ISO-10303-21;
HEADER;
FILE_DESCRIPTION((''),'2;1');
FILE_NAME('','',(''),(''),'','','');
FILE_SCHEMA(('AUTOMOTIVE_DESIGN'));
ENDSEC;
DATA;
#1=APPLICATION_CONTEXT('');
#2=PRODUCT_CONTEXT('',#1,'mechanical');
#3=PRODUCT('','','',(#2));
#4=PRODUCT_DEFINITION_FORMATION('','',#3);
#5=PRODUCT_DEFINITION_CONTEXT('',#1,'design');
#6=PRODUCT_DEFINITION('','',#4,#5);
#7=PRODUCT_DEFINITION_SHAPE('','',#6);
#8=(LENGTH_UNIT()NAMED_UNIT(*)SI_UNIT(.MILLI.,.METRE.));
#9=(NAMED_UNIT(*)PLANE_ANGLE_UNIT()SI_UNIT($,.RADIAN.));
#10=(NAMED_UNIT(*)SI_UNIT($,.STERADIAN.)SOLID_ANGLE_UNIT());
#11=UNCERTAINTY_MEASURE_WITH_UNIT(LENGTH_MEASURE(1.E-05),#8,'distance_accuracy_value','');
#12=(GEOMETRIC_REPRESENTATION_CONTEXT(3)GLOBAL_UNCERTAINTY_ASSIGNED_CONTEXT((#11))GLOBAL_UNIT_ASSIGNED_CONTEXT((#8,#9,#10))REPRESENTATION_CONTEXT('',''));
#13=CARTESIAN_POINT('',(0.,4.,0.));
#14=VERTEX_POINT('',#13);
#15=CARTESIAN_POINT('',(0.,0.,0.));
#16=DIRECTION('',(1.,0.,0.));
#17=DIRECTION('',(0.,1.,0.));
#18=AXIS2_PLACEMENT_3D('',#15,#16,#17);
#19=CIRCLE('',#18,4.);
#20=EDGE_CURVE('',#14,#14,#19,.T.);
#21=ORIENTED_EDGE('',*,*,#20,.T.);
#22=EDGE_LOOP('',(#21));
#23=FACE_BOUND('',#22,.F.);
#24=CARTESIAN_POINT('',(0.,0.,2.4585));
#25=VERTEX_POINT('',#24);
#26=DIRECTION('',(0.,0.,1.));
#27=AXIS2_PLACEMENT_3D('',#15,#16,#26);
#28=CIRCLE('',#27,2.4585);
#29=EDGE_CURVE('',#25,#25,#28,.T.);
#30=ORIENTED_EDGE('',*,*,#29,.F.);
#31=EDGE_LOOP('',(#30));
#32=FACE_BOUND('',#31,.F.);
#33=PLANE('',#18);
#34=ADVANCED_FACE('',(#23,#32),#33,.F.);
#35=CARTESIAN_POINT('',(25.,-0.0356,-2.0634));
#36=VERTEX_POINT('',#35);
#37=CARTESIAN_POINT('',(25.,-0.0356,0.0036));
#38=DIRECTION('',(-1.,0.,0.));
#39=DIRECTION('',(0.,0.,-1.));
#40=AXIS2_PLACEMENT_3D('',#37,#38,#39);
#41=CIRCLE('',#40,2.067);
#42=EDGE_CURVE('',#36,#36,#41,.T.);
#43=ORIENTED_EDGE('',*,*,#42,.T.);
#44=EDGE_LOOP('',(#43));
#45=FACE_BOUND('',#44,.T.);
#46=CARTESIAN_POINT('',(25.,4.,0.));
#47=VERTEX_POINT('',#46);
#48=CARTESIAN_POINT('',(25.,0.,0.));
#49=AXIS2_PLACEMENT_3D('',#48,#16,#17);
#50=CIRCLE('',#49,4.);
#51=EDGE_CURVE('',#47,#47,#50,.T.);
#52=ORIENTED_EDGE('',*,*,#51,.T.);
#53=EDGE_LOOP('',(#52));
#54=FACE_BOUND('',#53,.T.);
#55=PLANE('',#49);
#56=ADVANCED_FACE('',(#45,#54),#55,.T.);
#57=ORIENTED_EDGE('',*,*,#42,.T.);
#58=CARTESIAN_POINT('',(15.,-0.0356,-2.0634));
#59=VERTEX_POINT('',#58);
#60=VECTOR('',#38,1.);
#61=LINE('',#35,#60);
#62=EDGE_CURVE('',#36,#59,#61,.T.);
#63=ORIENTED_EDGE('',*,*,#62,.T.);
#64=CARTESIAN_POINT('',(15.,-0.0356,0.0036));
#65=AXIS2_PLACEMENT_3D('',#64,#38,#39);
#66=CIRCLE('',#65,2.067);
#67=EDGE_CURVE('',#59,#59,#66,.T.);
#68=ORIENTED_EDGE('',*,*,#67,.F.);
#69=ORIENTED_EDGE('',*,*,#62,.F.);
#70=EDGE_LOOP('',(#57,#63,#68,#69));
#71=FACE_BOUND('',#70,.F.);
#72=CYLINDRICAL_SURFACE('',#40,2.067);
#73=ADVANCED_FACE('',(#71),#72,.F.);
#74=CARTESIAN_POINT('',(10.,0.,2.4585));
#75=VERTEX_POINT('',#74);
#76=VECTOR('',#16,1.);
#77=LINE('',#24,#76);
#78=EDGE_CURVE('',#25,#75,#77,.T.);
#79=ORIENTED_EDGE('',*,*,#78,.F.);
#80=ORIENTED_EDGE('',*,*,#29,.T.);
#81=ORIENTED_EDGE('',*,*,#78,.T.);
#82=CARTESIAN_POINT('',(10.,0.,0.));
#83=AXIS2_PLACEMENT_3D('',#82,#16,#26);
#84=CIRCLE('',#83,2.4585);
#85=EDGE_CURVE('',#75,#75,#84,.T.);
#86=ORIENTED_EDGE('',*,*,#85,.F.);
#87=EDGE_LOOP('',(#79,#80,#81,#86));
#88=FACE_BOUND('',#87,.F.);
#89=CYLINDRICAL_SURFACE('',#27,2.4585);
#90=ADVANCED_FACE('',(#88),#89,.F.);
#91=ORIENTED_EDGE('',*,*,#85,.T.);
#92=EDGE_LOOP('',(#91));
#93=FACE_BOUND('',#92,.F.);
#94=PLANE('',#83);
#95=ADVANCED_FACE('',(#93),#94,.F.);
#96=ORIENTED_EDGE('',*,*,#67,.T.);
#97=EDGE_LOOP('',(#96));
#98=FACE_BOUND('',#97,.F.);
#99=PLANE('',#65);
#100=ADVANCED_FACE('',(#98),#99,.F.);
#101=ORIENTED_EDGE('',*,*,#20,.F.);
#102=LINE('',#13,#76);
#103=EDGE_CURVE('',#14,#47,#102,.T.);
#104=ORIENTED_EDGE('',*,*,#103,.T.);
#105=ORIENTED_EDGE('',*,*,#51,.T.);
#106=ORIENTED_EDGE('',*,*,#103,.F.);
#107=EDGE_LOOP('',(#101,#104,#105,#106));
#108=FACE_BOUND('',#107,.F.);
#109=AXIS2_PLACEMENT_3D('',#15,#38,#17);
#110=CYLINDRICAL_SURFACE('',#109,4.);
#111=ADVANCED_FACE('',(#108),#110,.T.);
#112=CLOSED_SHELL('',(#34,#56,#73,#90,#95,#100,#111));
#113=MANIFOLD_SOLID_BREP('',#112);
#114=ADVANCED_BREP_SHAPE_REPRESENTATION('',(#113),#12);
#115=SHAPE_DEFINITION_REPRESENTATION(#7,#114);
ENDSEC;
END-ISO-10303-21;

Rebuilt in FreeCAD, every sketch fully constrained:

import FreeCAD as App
import Part
import Sketcher

doc = App.newDocument("Part")
params = doc.addObject("Spreadsheet::Sheet", "Params")
for row, (alias, value) in enumerate([
    ("sketch1_diameter", "8 mm"),
    ("pad1_length", "25 mm"),
    ("hole_diameter", "4.134 mm"),
    ("hole_depth", "10 mm"),
    ("hole2_diameter", "4.917 mm"),
    ("hole2_depth", "10 mm"),
], start=1):
    params.set(f"A{row}", alias)
    params.set(f"B{row}", "=" + value)
    params.setAlias(f"B{row}", alias)

body = doc.addObject("PartDesign::Body", "Body")

sketch1 = body.newObject("Sketcher::SketchObject", "Sketch")
sketch1.AttachmentSupport = (doc.getObject("YZ_Plane"), [""])
sketch1.MapMode = "FlatFace"
sketch1.addGeometry(Part.Circle(App.Vector(0, 0, 0), App.Vector(0, 0, 1), 4), False)
sketch1.addConstraint([
    Sketcher.Constraint("Coincident", 0, 3, -1, 1),
    Sketcher.Constraint("Diameter", 0, 8.0),
])
sketch1.setExpression("Constraints[1]", "Params.sketch1_diameter")
pad1 = body.newObject("PartDesign::Pad", "Pad")
pad1.Profile = sketch1
pad1.setExpression("Length", "Params.pad1_length")

sketch2 = body.newObject("Sketcher::SketchObject", "Sketch001")
sketch2.AttachmentSupport = (doc.getObject("YZ_Plane"), [""])
sketch2.MapMode = "FlatFace"
sketch2.AttachmentOffset = App.Placement(App.Vector(0, 0, 25), App.Rotation())
sketch2.addGeometry(Part.Circle(App.Vector(-0.0356, 0.0036, 0), App.Vector(0, 0, 1), 2.067), False)
sketch2.addConstraint([
    Sketcher.Constraint("Diameter", 0, 4.134),
    Sketcher.Constraint("DistanceX", 0, 3, -1, 1, 0.0356),
    Sketcher.Constraint("DistanceY", -1, 1, 0, 3, 0.0036),
])
doc.recompute()
hole = body.newObject("PartDesign::Hole", "Hole")
hole.Profile = sketch2
hole.ThreadType = "None"
hole.setExpression("Diameter", "Params.hole_diameter")
hole.DepthType = "Dimension"
hole.setExpression("Depth", "Params.hole_depth")
hole.DrillPoint = "Flat"

sketch3 = body.newObject("Sketcher::SketchObject", "Sketch002")
sketch3.AttachmentSupport = (doc.getObject("YZ_Plane"), [""])
sketch3.MapMode = "FlatFace"
sketch3.addGeometry(Part.Circle(App.Vector(0, 0, 0), App.Vector(0, 0, 1), 2.4585), False)
sketch3.addConstraint([
    Sketcher.Constraint("Coincident", 0, 3, -1, 1),
    Sketcher.Constraint("Diameter", 0, 4.917),
])
doc.recompute()
hole2 = body.newObject("PartDesign::Hole", "Hole001")
hole2.Profile = sketch3
hole2.ThreadType = "None"
hole2.setExpression("Diameter", "Params.hole2_diameter")
hole2.DepthType = "Dimension"
hole2.setExpression("Depth", "Params.hole2_depth")
hole2.DrillPoint = "Flat"
hole2.Reversed = True

doc.recompute()
